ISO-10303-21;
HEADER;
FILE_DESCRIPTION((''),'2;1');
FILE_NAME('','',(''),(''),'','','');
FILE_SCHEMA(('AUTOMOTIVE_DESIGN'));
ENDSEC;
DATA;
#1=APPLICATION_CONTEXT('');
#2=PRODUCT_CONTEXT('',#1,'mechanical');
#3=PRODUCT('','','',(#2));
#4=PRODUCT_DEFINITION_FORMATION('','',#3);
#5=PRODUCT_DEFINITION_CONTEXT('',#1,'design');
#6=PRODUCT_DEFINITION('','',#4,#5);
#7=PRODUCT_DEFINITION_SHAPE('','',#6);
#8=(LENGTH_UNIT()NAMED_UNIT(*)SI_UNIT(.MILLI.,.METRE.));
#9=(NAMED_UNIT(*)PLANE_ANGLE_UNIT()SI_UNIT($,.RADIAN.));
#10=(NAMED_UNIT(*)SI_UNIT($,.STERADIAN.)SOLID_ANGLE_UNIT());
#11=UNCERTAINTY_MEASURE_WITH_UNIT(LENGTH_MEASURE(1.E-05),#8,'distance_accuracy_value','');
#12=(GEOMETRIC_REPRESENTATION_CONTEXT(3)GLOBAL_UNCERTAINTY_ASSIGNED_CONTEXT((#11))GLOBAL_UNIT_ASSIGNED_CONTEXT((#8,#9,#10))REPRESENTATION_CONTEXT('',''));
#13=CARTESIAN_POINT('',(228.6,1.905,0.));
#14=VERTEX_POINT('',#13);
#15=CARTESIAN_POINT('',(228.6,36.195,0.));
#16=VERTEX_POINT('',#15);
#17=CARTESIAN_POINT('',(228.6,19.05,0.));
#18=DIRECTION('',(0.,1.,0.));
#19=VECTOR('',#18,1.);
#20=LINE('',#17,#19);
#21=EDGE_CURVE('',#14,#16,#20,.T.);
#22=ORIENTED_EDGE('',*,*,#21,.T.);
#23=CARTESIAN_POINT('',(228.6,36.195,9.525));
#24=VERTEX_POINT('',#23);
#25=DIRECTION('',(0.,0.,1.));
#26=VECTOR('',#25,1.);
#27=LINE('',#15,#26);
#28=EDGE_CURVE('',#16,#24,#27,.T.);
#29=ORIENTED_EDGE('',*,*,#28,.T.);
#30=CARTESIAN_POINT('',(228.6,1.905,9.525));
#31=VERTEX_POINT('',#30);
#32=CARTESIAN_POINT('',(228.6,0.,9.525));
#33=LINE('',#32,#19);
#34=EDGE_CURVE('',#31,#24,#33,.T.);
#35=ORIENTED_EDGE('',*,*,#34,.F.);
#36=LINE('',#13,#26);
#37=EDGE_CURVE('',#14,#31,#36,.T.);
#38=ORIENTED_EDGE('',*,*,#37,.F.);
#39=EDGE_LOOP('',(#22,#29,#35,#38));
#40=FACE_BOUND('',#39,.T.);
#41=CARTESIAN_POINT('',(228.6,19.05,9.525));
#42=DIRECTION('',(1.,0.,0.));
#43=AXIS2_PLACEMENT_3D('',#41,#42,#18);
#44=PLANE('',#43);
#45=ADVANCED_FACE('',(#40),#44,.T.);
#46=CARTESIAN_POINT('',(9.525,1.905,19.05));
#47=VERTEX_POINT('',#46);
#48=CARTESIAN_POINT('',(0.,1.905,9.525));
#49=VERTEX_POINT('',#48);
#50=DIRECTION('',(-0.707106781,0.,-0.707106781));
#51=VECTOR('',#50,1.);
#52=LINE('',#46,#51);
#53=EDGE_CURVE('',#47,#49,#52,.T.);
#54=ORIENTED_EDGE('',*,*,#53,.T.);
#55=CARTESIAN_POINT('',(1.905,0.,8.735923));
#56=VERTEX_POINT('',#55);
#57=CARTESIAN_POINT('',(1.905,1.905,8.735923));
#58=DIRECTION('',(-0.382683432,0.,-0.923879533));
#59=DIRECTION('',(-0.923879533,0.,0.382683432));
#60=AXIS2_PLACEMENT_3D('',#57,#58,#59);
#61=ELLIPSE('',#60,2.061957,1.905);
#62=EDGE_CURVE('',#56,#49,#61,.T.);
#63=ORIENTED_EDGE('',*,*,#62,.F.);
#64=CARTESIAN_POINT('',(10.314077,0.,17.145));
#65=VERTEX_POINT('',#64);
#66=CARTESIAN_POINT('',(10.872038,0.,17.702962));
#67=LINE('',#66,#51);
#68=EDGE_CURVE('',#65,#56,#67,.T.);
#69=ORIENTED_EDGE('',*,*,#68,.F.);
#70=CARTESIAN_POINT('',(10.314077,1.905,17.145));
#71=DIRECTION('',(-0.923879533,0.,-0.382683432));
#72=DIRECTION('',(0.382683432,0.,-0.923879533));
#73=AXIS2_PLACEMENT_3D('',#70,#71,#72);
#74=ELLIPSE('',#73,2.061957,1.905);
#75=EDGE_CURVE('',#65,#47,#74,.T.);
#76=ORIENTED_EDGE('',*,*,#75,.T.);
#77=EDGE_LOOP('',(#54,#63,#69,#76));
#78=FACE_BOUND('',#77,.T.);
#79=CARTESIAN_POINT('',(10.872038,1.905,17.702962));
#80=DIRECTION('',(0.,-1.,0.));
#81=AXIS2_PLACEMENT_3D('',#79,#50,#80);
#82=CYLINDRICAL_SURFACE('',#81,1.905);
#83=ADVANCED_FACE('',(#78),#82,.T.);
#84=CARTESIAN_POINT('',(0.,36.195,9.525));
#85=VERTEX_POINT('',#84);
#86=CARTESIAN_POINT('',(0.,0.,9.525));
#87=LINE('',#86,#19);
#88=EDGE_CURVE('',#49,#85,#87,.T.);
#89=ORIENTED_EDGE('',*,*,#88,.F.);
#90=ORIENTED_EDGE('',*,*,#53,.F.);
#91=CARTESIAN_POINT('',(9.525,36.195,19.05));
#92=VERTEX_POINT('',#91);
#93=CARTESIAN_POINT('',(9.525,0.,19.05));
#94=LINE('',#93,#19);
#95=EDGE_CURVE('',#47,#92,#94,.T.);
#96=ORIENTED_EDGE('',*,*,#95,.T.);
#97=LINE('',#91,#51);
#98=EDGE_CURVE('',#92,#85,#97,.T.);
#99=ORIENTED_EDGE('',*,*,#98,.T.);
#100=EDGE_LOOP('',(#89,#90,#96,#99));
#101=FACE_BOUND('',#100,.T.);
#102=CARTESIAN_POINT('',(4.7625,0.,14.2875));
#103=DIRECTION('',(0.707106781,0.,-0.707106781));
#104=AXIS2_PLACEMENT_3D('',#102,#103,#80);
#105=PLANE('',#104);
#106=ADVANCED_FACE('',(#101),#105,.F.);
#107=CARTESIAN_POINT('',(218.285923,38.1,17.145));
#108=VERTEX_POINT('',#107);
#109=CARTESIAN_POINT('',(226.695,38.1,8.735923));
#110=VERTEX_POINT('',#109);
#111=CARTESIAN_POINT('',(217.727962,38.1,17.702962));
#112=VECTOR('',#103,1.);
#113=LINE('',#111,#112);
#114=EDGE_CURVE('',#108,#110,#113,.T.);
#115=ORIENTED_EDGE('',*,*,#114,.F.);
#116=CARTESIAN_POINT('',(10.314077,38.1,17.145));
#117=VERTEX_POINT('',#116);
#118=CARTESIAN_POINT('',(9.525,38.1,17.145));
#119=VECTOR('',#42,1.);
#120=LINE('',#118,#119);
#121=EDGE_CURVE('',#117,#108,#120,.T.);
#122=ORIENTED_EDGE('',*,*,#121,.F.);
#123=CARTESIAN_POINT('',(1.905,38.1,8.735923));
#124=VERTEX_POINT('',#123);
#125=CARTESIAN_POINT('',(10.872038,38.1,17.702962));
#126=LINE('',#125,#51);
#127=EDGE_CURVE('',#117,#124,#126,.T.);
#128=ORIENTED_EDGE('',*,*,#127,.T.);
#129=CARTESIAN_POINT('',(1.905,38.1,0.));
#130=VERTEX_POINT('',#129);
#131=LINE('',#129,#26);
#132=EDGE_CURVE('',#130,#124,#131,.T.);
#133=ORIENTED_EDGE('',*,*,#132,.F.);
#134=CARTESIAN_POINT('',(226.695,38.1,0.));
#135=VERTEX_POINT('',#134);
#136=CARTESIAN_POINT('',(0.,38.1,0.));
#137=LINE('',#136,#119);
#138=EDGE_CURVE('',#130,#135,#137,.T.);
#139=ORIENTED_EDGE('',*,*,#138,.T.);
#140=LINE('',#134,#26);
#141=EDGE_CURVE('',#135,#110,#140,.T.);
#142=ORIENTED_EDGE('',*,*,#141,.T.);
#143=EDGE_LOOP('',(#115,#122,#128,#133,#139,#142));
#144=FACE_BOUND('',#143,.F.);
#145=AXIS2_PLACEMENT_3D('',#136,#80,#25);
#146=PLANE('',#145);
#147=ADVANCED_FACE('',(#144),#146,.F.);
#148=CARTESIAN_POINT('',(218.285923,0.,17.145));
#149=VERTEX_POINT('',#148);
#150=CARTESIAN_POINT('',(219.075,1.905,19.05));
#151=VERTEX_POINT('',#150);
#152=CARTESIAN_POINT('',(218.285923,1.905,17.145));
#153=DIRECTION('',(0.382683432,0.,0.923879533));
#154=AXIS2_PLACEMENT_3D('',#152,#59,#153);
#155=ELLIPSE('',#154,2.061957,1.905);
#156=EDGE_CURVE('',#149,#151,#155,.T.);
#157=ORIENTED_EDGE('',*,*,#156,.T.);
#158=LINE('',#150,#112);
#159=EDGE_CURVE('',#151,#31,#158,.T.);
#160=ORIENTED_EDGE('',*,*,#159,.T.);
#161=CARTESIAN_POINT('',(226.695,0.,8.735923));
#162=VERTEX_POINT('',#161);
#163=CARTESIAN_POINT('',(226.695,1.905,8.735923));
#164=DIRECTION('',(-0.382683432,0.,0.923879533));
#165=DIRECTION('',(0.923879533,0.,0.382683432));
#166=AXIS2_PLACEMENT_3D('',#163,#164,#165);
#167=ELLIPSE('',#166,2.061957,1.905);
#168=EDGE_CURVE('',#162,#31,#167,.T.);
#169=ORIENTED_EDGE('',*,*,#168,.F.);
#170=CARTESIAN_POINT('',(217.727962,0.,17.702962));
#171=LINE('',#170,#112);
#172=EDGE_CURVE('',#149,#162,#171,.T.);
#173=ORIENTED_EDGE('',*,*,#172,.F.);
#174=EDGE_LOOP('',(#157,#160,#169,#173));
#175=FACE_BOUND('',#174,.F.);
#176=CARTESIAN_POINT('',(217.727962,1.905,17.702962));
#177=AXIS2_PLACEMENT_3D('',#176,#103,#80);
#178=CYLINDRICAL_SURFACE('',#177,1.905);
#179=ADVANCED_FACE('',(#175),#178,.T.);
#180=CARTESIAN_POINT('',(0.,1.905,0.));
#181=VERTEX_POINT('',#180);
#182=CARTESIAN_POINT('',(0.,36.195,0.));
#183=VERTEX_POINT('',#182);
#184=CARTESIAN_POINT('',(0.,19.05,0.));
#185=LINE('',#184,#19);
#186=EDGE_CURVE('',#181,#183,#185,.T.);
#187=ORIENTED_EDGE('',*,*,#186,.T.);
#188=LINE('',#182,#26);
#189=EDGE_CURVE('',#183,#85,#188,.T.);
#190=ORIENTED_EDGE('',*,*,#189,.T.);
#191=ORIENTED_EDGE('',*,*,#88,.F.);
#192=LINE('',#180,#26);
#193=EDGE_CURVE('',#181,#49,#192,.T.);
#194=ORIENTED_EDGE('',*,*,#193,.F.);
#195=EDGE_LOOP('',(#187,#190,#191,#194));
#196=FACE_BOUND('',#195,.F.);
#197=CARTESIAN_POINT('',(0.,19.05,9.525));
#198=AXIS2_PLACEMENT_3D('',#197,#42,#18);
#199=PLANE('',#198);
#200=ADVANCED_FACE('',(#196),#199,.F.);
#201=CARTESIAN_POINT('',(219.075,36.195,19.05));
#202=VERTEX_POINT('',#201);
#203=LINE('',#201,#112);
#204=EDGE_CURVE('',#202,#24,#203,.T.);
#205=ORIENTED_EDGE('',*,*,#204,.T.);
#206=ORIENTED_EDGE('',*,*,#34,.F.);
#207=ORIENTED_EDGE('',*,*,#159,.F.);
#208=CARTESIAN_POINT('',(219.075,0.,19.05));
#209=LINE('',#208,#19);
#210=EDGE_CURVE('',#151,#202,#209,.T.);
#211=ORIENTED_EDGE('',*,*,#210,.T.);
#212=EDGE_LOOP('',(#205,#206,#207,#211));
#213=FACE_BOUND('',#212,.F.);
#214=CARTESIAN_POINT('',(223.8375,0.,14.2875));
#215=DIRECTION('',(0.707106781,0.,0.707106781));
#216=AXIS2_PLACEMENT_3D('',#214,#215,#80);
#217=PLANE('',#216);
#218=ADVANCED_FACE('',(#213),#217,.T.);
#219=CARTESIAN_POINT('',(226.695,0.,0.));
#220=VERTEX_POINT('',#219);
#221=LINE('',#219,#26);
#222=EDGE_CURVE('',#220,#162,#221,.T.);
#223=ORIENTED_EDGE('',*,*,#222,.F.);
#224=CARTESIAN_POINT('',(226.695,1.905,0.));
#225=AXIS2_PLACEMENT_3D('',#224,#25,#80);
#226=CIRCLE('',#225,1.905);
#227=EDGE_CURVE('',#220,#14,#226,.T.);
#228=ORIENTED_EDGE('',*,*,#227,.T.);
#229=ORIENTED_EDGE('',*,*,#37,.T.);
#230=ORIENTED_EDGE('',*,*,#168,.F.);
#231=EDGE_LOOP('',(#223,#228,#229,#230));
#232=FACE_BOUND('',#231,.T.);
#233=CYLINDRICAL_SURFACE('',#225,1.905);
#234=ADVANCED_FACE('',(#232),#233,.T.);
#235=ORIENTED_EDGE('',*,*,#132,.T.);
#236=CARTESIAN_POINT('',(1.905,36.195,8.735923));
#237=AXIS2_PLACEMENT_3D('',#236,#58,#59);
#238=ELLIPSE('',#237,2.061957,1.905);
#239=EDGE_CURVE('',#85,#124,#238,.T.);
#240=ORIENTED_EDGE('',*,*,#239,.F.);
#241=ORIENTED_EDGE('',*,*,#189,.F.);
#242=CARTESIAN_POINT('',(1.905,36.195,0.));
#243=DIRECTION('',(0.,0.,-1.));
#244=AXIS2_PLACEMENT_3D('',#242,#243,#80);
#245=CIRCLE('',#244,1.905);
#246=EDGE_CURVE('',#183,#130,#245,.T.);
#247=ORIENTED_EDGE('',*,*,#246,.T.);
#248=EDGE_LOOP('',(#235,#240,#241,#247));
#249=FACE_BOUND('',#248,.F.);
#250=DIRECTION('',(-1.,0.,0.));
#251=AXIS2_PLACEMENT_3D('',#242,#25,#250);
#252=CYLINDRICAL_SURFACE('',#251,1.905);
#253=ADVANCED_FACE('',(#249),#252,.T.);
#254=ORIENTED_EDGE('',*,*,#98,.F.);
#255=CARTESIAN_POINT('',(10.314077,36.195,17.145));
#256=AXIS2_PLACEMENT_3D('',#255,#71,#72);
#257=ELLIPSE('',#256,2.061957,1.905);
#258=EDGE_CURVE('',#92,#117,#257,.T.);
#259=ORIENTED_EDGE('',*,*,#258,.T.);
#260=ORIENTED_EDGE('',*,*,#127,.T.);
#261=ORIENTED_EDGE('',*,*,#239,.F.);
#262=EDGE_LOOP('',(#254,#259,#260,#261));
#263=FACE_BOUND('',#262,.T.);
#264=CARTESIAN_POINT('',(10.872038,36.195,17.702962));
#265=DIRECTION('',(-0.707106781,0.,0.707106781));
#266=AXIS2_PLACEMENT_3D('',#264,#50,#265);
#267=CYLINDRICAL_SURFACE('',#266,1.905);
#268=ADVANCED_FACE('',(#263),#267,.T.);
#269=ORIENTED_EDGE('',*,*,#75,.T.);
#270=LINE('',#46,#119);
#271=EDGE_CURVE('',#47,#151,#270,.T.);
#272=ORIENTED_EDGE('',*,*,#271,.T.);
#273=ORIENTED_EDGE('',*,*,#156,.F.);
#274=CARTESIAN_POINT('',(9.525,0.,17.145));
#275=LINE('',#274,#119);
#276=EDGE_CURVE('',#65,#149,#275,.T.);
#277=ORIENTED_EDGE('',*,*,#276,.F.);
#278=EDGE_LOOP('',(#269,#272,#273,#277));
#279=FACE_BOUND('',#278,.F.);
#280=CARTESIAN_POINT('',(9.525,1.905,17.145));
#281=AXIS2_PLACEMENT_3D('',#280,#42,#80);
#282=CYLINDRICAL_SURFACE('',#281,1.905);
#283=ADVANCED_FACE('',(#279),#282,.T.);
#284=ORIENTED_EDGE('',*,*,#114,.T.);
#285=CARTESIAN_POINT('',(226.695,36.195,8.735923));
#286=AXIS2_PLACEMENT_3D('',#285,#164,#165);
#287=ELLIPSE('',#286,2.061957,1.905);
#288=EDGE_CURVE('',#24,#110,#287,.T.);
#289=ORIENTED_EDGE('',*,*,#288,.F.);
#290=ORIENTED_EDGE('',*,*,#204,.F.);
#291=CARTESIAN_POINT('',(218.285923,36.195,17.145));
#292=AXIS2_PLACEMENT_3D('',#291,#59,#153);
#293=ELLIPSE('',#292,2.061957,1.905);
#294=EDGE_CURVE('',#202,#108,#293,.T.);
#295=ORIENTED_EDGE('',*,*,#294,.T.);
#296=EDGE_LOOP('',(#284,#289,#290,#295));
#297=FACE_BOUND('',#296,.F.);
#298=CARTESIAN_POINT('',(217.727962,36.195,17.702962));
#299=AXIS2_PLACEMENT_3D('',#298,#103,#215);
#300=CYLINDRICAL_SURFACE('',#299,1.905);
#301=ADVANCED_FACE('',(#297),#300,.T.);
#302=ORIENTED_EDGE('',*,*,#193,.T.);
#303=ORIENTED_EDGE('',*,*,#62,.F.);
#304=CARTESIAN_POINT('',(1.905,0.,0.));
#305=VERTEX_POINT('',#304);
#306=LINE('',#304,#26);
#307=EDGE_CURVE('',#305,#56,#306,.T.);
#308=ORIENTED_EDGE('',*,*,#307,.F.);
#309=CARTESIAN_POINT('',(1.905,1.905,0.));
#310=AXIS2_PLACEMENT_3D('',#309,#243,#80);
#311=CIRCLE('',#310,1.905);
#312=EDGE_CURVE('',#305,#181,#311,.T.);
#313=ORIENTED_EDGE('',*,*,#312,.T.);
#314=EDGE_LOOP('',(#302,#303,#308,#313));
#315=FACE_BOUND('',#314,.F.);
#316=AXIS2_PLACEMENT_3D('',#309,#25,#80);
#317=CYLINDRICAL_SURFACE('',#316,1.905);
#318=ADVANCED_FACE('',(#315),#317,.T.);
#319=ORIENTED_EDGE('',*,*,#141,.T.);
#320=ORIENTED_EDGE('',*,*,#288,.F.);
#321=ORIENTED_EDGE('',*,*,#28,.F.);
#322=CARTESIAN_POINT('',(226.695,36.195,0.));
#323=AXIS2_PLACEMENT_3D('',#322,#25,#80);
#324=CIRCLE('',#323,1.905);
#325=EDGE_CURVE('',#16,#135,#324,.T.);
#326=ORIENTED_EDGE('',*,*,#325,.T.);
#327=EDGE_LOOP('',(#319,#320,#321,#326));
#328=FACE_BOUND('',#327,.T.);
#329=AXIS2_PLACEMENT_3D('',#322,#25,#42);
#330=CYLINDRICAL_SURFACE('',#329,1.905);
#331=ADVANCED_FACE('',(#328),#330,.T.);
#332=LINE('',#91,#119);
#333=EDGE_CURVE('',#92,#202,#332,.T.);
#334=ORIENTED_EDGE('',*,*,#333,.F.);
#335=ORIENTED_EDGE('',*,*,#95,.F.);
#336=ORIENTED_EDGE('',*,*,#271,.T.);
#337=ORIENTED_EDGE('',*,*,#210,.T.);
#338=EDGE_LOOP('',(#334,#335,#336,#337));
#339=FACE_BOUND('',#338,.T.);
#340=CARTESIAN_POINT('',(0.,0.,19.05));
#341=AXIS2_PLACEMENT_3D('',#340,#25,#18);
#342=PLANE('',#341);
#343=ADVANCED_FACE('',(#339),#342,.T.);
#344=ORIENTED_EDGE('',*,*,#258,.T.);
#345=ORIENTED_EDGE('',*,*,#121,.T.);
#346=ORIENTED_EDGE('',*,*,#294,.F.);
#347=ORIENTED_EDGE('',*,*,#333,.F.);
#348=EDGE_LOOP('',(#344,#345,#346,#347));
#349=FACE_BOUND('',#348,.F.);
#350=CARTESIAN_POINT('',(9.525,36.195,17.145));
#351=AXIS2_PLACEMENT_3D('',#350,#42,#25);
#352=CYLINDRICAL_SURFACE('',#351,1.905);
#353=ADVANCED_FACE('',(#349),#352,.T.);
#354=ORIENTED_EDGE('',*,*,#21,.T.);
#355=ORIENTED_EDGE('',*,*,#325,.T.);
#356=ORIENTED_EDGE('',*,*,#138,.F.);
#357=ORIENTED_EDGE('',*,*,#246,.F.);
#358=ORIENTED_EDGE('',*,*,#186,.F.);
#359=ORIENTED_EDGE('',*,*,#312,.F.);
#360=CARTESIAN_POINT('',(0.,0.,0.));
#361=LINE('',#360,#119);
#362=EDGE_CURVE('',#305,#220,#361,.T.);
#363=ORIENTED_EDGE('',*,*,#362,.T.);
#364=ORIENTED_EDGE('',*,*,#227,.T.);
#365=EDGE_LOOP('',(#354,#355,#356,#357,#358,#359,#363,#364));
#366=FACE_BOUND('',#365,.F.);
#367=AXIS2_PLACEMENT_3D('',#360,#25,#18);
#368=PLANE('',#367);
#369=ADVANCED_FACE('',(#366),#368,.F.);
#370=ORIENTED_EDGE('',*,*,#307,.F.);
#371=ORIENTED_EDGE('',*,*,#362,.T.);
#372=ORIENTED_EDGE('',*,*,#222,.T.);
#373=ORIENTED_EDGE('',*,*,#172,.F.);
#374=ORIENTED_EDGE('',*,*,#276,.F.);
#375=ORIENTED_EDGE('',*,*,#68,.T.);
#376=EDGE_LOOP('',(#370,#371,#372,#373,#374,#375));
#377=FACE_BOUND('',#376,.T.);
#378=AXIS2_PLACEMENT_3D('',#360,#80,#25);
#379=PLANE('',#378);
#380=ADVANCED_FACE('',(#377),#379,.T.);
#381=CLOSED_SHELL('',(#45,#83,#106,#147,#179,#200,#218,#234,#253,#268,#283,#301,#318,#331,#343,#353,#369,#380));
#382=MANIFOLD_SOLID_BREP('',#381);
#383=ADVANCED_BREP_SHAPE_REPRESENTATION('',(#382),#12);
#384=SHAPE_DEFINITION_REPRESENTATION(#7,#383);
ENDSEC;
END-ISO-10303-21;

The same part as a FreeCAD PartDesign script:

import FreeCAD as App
import Part
import Sketcher
from FreeCAD import Vector
Q = App.Units.Quantity


def edges_at(feature, points):
    """Names of the edges that pass closest to the given points."""
    edges = feature.Shape.Edges
    near = lambda p: min(range(len(edges)), key=lambda i: edges[i].distToShape(Part.Vertex(*p))[0])
    return sorted({f"Edge{near(p) + 1}" for p in points})


def add_polygon(sketch, points):
    """Adds a closed chain of lines whose ends are joined by coincident constraints."""
    first, n = sketch.GeometryCount, len(points)
    for a, b in zip(points, points[1:] + points[:1]):
        sketch.addGeometry(Part.LineSegment(App.Vector(*a, 0), App.Vector(*b, 0)), False)
    for i in range(n):
        sketch.addConstraint(Sketcher.Constraint("Coincident", first + i, 2, first + (i + 1) % n, 1))

doc = App.newDocument("Part")
params = doc.addObject("Spreadsheet::Sheet", "Params")
for row, (alias, value) in enumerate([
    ("sketch1_width", "1.5 in"),
    ("sketch1_height", "0.75 in"),
    ("pad1_length", "9 in"),
    ("chamfer_size", "0.375 in"),
    ("fillet_radius", "0.075 in"),
], start=1):
    params.set(f"A{row}", alias)
    params.set(f"B{row}", "=" + value)
    params.setAlias(f"B{row}", alias)

body = doc.addObject("PartDesign::Body", "Body")

sketch1 = body.newObject("Sketcher::SketchObject", "Sketch")
sketch1.AttachmentSupport = (doc.getObject("YZ_Plane"), [""])
sketch1.MapMode = "FlatFace"
add_polygon(sketch1, [(0, 19), (0, 0), (38, 0), (38, 19)])
sketch1.addConstraint([
    Sketcher.Constraint("Vertical", 0),
    Sketcher.Constraint("Horizontal", 1),
    Sketcher.Constraint("Vertical", 2),
    Sketcher.Constraint("Horizontal", 3),
    Sketcher.Constraint("Coincident", 0, 2, -1, 1),
    Sketcher.Constraint("DistanceX", 1, 1, 1, 2, Q("1.5 in")),
    Sketcher.Constraint("DistanceY", 0, 2, 0, 1, Q("0.75 in")),
])
sketch1.setExpression("Constraints[9]", "Params.sketch1_width")
sketch1.setExpression("Constraints[10]", "Params.sketch1_height")
pad1 = body.newObject("PartDesign::Pad", "Pad")
pad1.Profile = sketch1
pad1.setExpression("Length", "Params.pad1_length")
doc.recompute()

chamfer = body.newObject("PartDesign::Chamfer", "Chamfer")
chamfer.Base = (pad1, edges_at(pad1, [(0, 19.05, 19.05), (228.6, 19.05, 19.05)]))
chamfer.setExpression("Size", "Params.chamfer_size")
doc.recompute()

fillet = body.newObject("PartDesign::Fillet", "Fillet")
fillet.Base = (chamfer, edges_at(chamfer, [
    (114.3, 0, 19.05),
    (4.763, 0, 14.287),
    (0, 0, 4.763),
    (223.838, 0, 14.287),
    (228.6, 0, 4.763),
    (114.3, 38.1, 19.05),
    (4.763, 38.1, 14.287),
    (0, 38.1, 4.763),
    (223.838, 38.1, 14.287),
    (228.6, 38.1, 4.763),
]))
fillet.setExpression("Radius", "Params.fillet_radius")

doc.recompute()
